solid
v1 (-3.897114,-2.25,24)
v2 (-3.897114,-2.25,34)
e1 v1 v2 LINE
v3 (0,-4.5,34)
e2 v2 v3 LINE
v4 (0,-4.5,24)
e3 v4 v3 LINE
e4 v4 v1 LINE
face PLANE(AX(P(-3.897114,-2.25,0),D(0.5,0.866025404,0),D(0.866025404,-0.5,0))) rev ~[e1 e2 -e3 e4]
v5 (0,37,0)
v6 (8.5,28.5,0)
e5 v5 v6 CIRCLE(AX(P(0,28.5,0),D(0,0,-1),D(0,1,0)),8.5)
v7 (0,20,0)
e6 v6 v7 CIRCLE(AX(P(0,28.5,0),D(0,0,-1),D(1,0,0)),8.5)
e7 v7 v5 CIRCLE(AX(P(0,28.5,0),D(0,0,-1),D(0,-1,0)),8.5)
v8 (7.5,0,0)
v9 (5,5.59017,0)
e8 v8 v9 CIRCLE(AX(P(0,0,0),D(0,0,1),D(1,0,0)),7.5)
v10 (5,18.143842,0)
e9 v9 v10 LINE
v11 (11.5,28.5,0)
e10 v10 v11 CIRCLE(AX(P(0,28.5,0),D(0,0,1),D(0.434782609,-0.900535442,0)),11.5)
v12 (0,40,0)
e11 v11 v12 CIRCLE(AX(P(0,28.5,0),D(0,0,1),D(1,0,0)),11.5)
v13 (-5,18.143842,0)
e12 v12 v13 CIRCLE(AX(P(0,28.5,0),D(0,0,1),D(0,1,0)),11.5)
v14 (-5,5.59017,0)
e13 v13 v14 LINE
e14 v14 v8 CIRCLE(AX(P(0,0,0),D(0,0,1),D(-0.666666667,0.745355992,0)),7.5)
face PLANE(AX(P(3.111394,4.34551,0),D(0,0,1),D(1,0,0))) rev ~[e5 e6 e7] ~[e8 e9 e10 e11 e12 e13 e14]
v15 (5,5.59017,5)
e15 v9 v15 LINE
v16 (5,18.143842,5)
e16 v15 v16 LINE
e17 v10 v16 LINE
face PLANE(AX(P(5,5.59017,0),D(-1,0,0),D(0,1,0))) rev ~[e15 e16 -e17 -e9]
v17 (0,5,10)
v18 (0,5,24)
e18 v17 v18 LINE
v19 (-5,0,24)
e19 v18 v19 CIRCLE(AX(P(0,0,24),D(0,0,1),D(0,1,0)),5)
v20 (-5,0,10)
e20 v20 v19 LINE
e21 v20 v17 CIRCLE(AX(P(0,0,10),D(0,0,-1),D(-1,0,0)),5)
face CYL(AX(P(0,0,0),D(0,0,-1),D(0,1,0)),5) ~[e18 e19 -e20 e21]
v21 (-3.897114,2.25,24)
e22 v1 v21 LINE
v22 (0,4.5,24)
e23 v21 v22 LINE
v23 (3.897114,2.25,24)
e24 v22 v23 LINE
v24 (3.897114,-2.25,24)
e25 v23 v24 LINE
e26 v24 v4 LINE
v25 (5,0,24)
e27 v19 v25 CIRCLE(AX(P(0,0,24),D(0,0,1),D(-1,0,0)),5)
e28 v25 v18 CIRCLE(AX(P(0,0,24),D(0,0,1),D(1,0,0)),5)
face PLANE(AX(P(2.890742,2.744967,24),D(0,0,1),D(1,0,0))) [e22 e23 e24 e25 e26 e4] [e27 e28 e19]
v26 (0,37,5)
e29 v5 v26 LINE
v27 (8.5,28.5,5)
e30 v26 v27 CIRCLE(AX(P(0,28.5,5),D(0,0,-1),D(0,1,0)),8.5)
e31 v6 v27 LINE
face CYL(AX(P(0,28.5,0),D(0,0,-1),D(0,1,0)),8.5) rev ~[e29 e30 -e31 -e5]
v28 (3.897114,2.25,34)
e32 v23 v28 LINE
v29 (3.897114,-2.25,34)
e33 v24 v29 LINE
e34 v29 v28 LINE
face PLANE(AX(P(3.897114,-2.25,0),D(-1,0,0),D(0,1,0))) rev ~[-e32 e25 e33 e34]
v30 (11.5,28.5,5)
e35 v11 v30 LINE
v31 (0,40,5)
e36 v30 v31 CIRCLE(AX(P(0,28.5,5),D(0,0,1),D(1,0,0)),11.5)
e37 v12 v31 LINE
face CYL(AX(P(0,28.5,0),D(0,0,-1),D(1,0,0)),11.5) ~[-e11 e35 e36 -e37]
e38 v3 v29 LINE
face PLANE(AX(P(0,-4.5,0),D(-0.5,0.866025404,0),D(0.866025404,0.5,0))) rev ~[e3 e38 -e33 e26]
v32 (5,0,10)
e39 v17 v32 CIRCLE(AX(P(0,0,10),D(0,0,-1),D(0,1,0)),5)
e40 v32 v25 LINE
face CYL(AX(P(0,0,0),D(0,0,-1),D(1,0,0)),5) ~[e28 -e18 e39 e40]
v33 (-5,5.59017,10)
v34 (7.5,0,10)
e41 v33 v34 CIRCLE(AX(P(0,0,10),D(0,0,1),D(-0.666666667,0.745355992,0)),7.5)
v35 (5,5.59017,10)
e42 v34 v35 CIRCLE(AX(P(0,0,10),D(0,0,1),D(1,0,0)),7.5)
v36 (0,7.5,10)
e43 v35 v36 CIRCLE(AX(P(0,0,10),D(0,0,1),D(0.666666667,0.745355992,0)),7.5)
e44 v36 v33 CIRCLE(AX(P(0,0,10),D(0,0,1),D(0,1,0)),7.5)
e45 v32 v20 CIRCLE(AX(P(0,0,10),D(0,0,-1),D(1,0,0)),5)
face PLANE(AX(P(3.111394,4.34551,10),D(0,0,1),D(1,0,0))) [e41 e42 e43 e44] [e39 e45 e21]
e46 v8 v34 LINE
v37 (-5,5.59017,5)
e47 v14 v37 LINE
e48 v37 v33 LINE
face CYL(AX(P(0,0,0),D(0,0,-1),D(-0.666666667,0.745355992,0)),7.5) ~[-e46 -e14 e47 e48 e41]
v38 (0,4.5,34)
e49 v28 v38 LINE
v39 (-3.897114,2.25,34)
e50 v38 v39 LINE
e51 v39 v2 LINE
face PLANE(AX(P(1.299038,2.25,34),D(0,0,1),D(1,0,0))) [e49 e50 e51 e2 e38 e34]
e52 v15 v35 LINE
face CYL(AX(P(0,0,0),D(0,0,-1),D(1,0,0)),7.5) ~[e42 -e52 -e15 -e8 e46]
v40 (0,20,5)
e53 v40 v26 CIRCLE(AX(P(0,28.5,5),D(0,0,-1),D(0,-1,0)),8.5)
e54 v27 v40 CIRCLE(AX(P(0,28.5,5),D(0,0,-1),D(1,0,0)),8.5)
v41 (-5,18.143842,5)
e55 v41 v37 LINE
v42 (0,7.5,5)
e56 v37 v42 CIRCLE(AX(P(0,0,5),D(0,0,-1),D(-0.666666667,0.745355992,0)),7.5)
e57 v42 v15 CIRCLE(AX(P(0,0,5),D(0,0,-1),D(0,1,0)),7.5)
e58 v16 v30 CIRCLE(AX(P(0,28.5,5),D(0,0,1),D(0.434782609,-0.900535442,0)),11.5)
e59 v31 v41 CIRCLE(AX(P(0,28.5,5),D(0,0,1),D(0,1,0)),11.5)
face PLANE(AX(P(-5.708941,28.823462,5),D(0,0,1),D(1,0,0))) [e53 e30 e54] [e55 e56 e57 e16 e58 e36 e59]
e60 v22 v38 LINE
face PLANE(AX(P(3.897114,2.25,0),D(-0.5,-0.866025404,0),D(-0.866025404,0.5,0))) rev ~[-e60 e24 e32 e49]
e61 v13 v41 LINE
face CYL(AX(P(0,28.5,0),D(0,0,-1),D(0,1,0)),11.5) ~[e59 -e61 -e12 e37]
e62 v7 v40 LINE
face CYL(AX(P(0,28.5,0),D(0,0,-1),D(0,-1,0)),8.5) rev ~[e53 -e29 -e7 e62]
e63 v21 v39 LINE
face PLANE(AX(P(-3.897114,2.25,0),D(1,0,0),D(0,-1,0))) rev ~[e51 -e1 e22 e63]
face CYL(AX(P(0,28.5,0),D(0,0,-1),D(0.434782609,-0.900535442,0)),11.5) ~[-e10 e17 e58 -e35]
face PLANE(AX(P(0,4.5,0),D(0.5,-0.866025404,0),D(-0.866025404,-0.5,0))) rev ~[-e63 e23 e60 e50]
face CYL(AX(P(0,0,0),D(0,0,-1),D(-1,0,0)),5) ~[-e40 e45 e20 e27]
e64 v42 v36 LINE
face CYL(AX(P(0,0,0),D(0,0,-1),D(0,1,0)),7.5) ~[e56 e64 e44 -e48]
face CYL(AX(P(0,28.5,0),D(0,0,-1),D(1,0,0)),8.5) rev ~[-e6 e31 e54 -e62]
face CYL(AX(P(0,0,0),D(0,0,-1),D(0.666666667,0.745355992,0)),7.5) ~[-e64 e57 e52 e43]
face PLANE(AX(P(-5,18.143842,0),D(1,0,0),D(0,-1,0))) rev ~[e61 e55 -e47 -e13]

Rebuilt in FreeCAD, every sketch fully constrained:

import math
import FreeCAD as App
import Part
import Sketcher

V = App.Vector
Q = App.Units.Quantity


def add_polygon(sketch, points):
    """Adds a closed chain of lines whose ends are joined by coincident constraints."""
    first, n = sketch.GeometryCount, len(points)
    for a, b in zip(points, points[1:] + points[:1]):
        sketch.addGeometry(Part.LineSegment(App.Vector(*a, 0), App.Vector(*b, 0)), False)
    for i in range(n):
        sketch.addConstraint(Sketcher.Constraint("Coincident", first + i, 2, first + (i + 1) % n, 1))

doc = App.newDocument("Part")
body = doc.addObject("PartDesign::Body", "Body")

sketch1 = body.newObject("Sketcher::SketchObject", "Sketch")
sketch1.AttachmentSupport = (doc.getObject("XY_Plane"), [""])
sketch1.MapMode = "FlatFace"
sketch1.addGeometry([
    Part.ArcOfCircle(Part.Circle(V(0, 28.5, 0), V(0, 0, 1), 11.5), math.radians(90), math.radians(244.228538)),
    Part.LineSegment(V(-5, 18.143842, 0), V(-5, 5.59017, 0)),
    Part.ArcOfCircle(Part.Circle(V(0, 0, 0), V(0, 0, 1), 7.5), math.radians(90), math.radians(131.810315)),
    Part.ArcOfCircle(Part.Circle(V(0, 0, 0), V(0, 0, 1), 7.5), math.radians(48.189685), math.radians(90)),
    Part.LineSegment(V(5, 5.59017, 0), V(5, 18.143842, 0)),
    Part.ArcOfCircle(Part.Circle(V(0, 28.5, 0), V(0, 0, 1), 11.5), math.radians(-64.228538), math.radians(0)),
    Part.ArcOfCircle(Part.Circle(V(0, 28.5, 0), V(0, 0, 1), 11.5), math.radians(0), math.radians(90)),
    Part.ArcOfCircle(Part.Circle(V(0, 28.5, 0), V(0, 0, 1), 8.5), math.radians(90), math.radians(270)),
    Part.ArcOfCircle(Part.Circle(V(0, 28.5, 0), V(0, 0, 1), 8.5), math.radians(0), math.radians(90)),
    Part.ArcOfCircle(Part.Circle(V(0, 28.5, 0), V(0, 0, 1), 8.5), math.radians(-90), math.radians(0)),
], False)
sketch1.addConstraint([
    Sketcher.Constraint("Coincident", 0, 2, 1, 1),
    Sketcher.Constraint("Coincident", 1, 2, 2, 2),
    Sketcher.Constraint("Tangent", 2, 1, 3, 2),
    Sketcher.Constraint("Coincident", 3, 1, 4, 1),
    Sketcher.Constraint("Coincident", 4, 2, 5, 1),
    Sketcher.Constraint("Tangent", 5, 2, 6, 1),
    Sketcher.Constraint("Tangent", 6, 2, 0, 1),
    Sketcher.Constraint("Tangent", 7, 1, 8, 2),
    Sketcher.Constraint("Tangent", 8, 1, 9, 2),
    Sketcher.Constraint("Tangent", 9, 1, 7, 2),
    Sketcher.Constraint("Vertical", 1),
    Sketcher.Constraint("Vertical", 4),
    Sketcher.Constraint("Coincident", 2, 3, -1, 1),
    Sketcher.Constraint("Coincident", 5, 3, 0, 3),
    Sketcher.Constraint("Coincident", 7, 3, 0, 3),
    Sketcher.Constraint("Equal", 2, 3),
    Sketcher.Constraint("Symmetric", 0, 2, 4, 2, -2),
    Sketcher.Constraint("PointOnObject", 2, 1, -2),
    Sketcher.Constraint("PointOnObject", 6, 2, -2),
    Sketcher.Constraint("PointOnObject", 7, 1, -2),
    Sketcher.Constraint("PointOnObject", 9, 1, -2),
    Sketcher.Constraint("Horizontal", 9, 3, 5, 2),
    Sketcher.Constraint("Horizontal", 5, 2, 8, 1),
    Sketcher.Constraint("Radius", 0, Q("11.5 mm")),
    Sketcher.Constraint("Radius", 2, Q("7.5 mm")),
    Sketcher.Constraint("Radius", 7, Q("8.5 mm")),
    Sketcher.Constraint("DistanceX", 0, 2, -1, 1, Q("5 mm")),
    Sketcher.Constraint("DistanceY", -1, 1, 6, 2, Q("40 mm")),
])
pad1 = body.newObject("PartDesign::Pad", "Pad")
pad1.Profile = sketch1
pad1.Length = 5

sketch2 = body.newObject("Sketcher::SketchObject", "Sketch001")
sketch2.AttachmentSupport = (doc.getObject("XY_Plane"), [""])
sketch2.MapMode = "FlatFace"
sketch2.addGeometry([
    Part.ArcOfCircle(Part.Circle(V(0, 0, 0), V(0, 0, 1), 7.5), math.radians(48.189685), math.radians(90)),
    Part.ArcOfCircle(Part.Circle(V(0, 0, 0), V(0, 0, 1), 7.5), math.radians(90), math.radians(131.810315)),
    Part.ArcOfCircle(Part.Circle(V(0, 0, 0), V(0, 0, 1), 7.5), math.radians(131.810315), math.radians(360)),
    Part.ArcOfCircle(Part.Circle(V(0, 0, 0), V(0, 0, 1), 7.5), math.radians(0), math.radians(48.189685)),
    Part.ArcOfCircle(Part.Circle(V(0, 0, 0), V(0, 0, 1), 5), math.radians(0), math.radians(90)),
    Part.ArcOfCircle(Part.Circle(V(0, 0, 0), V(0, 0, 1), 5), math.radians(180), math.radians(360)),
    Part.ArcOfCircle(Part.Circle(V(0, 0, 0), V(0, 0, 1), 5), math.radians(90), math.radians(180)),
], False)
sketch2.addConstraint([
    Sketcher.Constraint("Tangent", 0, 2, 1, 1),
    Sketcher.Constraint("Tangent", 1, 2, 2, 1),
    Sketcher.Constraint("Tangent", 2, 2, 3, 1),
    Sketcher.Constraint("Tangent", 3, 2, 0, 1),
    Sketcher.Constraint("Tangent", 4, 1, 5, 2),
    Sketcher.Constraint("Tangent", 5, 1, 6, 2),
    Sketcher.Constraint("Tangent", 6, 1, 4, 2),
    Sketcher.Constraint("Coincident", 0, 3, -1, 1),
    Sketcher.Constraint("Coincident", 4, 3, -1, 1),
    Sketcher.Constraint("Equal", 0, 1),
    Sketcher.Constraint("PointOnObject", 0, 2, -2),
    Sketcher.Constraint("PointOnObject", 2, 2, -1),
    Sketcher.Constraint("PointOnObject", 4, 1, -1),
    Sketcher.Constraint("PointOnObject", 5, 1, -1),
    Sketcher.Constraint("PointOnObject", 6, 1, -2),
    Sketcher.Constraint("Horizontal", 1, 2, 3, 2),
    Sketcher.Constraint("Vertical", 3, 2, 4, 1),
    Sketcher.Constraint("Radius", 4, Q("5 mm")),
    Sketcher.Constraint("Radius", 0, Q("7.5 mm")),
])
pad2 = body.newObject("PartDesign::Pad", "Pad001")
pad2.Profile = sketch2
pad2.Length = 10

sketch3 = body.newObject("Sketcher::SketchObject", "Sketch002")
sketch3.AttachmentSupport = (doc.getObject("XY_Plane"), [""])
sketch3.MapMode = "FlatFace"
sketch3.addGeometry(Part.ArcOfCircle(Part.Circle(V(0, 0, 0), V(0, 0, 1), 5), math.radians(0), math.radians(90)), False)
sketch3.addGeometry(Part.ArcOfCircle(Part.Circle(V(0, 0, 0), V(0, 0, 1), 5), math.radians(90), math.radians(180)), False)
sketch3.addGeometry(Part.ArcOfCircle(Part.Circle(V(0, 0, 0), V(0, 0, 1), 5), math.radians(180), math.radians(360)), False)
add_polygon(sketch3, [(0, 4.5), (3.897114, 2.25), (3.897114, -2.25), (0, -4.5), (-3.897114, -2.25), (-3.897114, 2.25)])
sketch3.addConstraint([
    Sketcher.Constraint("Tangent", 0, 2, 1, 1),
    Sketcher.Constraint("Tangent", 1, 2, 2, 1),
    Sketcher.Constraint("Tangent", 2, 2, 0, 1),
    Sketcher.Constraint("Vertical", 4),
    Sketcher.Constraint("Vertical", 7),
    Sketcher.Constraint("Coincident", 0, 3, -1, 1),
    Sketcher.Constraint("Symmetric", 3, 2, 6, 2, -1, 1),
    Sketcher.Constraint("Symmetric", 5, 2, 8, 2, -1, 1),
    Sketcher.Constraint("PointOnObject", 0, 2, -2),
    Sketcher.Constraint("PointOnObject", 1, 2, -1),
    Sketcher.Constraint("PointOnObject", 2, 2, -1),
    Sketcher.Constraint("PointOnObject", 5, 2, -2),
    Sketcher.Constraint("Parallel", 5, 8),
    Sketcher.Constraint("Horizontal", 4, 2, 6, 2),
    Sketcher.Constraint("Radius", 0, Q("5 mm")),
    Sketcher.Constraint("Angle", 3, Q("-30 deg")),
    Sketcher.Constraint("DistanceY", 4, 2, 4, 1, Q("4.5 mm")),
    Sketcher.Constraint("Distance", 3, Q("4.5 mm")),
])
pad3 = body.newObject("PartDesign::Pad", "Pad002")
pad3.Profile = sketch3
pad3.Length = 24

sketch4 = body.newObject("Sketcher::SketchObject", "Sketch003")
sketch4.AttachmentSupport = (doc.getObject("XY_Plane"), [""])
sketch4.MapMode = "FlatFace"
add_polygon(sketch4, [(3.897114, 2.25), (0, 4.5), (-3.897114, 2.25), (-3.897114, -2.25), (0, -4.5), (3.897114, -2.25)])
sketch4.addConstraint([
    Sketcher.Constraint("Vertical", 2),
    Sketcher.Constraint("Vertical", 5),
    Sketcher.Constraint("Symmetric", 0, 2, 3, 2, -1, 1),
    Sketcher.Constraint("Symmetric", 1, 2, 4, 2, -1, 1),
    Sketcher.Constraint("PointOnObject", 0, 2, -2),
    Sketcher.Constraint("Parallel", 0, 3),
    Sketcher.Constraint("Horizontal", 2, 2, 4, 2),
    Sketcher.Constraint("Angle", 0, Q("150 deg")),
    Sketcher.Constraint("DistanceY", 2, 2, 2, 1, Q("4.5 mm")),
    Sketcher.Constraint("DistanceY", 3, 2, 0, 2, Q("9 mm")),
])
pad4 = body.newObject("PartDesign::Pad", "Pad003")
pad4.Profile = sketch4
pad4.Length = 34

doc.recompute()
